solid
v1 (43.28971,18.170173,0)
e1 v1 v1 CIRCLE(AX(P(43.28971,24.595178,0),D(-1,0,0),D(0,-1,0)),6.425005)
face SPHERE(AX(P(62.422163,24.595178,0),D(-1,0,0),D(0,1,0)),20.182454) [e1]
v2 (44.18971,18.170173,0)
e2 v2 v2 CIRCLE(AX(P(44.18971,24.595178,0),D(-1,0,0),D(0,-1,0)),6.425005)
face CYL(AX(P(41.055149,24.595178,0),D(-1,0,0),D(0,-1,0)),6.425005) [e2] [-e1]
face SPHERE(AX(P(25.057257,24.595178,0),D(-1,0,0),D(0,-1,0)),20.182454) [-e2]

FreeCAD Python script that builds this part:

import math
import FreeCAD as App
import Part
import Sketcher
from FreeCAD import Vector
Q = App.Units.Quantity

doc = App.newDocument("Part")
params = doc.addObject("Spreadsheet::Sheet", "Params")
for row, (alias, value) in enumerate([
    ("sketch1_width", "3.000002 mm"),
    ("sketch1_width2", "0.9 mm"),
    ("revolution_angle", "360 deg"),
], start=1):
    params.set(f"A{row}", alias)
    params.set(f"B{row}", "=" + value)
    params.setAlias(f"B{row}", alias)

body = doc.addObject("PartDesign::Body", "Body")

# Sketch on XY plane
sketch1 = body.newObject("Sketcher::SketchObject", "Sketch")
sketch1.AttachmentSupport = (doc.getObject("XY_Plane"), [""])
sketch1.MapMode = "FlatFace"
sketch1.addGeometry([
    Part.LineSegment(Vector(44.2, 31, 0), Vector(43.3, 31, 0)),
    Part.ArcOfCircle(Part.Circle(Vector(62.4, 24.6, 0), Vector(0, 0, 1), 20.2), math.radians(161.44), math.radians(180)),
    Part.LineSegment(Vector(42.2, 24.6, 0), Vector(45.2, 24.6, 0)),
    Part.ArcOfCircle(Part.Circle(Vector(25.1, 24.6, 0), Vector(0, 0, 1), 20.2), math.radians(0), math.radians(18.56)),
], False)
sketch1.addGeometry(Part.LineSegment(Vector(25.1, 24.6, 0), Vector(62.4, 24.6, 0)), True)  # axis
sketch1.addConstraint([
    Sketcher.Constraint("Coincident", 0, 2, 1, 1),
    Sketcher.Constraint("Coincident", 1, 2, 2, 1),
    Sketcher.Constraint("Coincident", 2, 2, 3, 1),
    Sketcher.Constraint("Coincident", 3, 2, 0, 1),
    Sketcher.Constraint("Horizontal", 0),
    Sketcher.Constraint("Horizontal", 2),
    Sketcher.Constraint("Horizontal", 4),
    Sketcher.Constraint("Coincident", 4, 1, 3, 3),
    Sketcher.Constraint("Coincident", 4, 2, 1, 3),
    Sketcher.Constraint("Equal", 1, 3),
    Sketcher.Constraint("Horizontal", 3, 3, 1, 2),
    Sketcher.Constraint("DistanceX", 2, 1, 2, 2, Q("3.000002 mm")),
    Sketcher.Constraint("DistanceX", 0, 2, 0, 1, Q("0.9 mm")),
    Sketcher.Constraint("Radius", 1, Q("20.182454 mm")),
    Sketcher.Constraint("DistanceY", -1, 1, 1, 3, Q("24.595178 mm")),
    Sketcher.Constraint("DistanceX", -1, 1, 0, 2, Q("43.28971 mm")),
])
sketch1.setExpression("Constraints[11]", "Params.sketch1_width")
sketch1.setExpression("Constraints[12]", "Params.sketch1_width2")
revolution = body.newObject("PartDesign::Revolution", "Revolution")
revolution.Profile = sketch1
revolution.ReferenceAxis = (sketch1, ["Axis0"])
revolution.setExpression("Angle", "Params.revolution_angle")

doc.recompute()
